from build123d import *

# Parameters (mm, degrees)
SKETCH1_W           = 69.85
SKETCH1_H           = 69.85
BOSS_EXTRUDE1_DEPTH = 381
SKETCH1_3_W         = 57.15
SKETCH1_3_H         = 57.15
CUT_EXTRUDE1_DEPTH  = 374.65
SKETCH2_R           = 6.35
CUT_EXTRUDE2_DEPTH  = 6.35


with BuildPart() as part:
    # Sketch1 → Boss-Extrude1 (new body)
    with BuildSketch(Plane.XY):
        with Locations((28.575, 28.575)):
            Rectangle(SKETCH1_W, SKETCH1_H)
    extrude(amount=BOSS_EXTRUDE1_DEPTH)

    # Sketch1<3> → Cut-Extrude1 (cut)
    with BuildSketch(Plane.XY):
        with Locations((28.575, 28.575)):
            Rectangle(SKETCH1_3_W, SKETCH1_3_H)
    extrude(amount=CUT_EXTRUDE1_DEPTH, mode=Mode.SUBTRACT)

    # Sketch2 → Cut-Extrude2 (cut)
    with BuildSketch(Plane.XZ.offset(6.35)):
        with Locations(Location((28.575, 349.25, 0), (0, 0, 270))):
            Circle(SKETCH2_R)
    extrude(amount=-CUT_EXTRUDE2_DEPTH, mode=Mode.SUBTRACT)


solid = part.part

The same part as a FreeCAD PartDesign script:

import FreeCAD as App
import Part
import Sketcher

V = App.Vector
Q = App.Units.Quantity


def add_polygon(sketch, points):
    """Adds a closed chain of lines whose ends are joined by coincident constraints."""
    first, n = sketch.GeometryCount, len(points)
    for a, b in zip(points, points[1:] + points[:1]):
        sketch.addGeometry(Part.LineSegment(App.Vector(*a, 0), App.Vector(*b, 0)), False)
    for i in range(n):
        sketch.addConstraint(Sketcher.Constraint("Coincident", first + i, 2, first + (i + 1) % n, 1))

doc = App.newDocument("Part")
body = doc.addObject("PartDesign::Body", "Body")

sketch1 = doc.addObject("Sketcher::SketchObject", "Sketch")
body.addObject(sketch1)
sketch1.AttachmentSupport = (doc.XY_Plane, [""])
sketch1.MapMode = "FlatFace"
add_polygon(sketch1, [(-6, 64), (-6, -6), (64, -6), (64, 64)])
sketch1.addConstraint([
    Sketcher.Constraint("Vertical", 0),
    Sketcher.Constraint("Horizontal", 1),
    Sketcher.Constraint("Vertical", 2),
    Sketcher.Constraint("Horizontal", 3),
    Sketcher.Constraint("Equal", 3, 0),
    Sketcher.Constraint("DistanceX", 1, 1, 1, 2, Q("2.75 in")),
    Sketcher.Constraint("DistanceX", -1, 1, 1, 2, Q("2.5 in")),
    Sketcher.Constraint("DistanceY", -1, 1, 2, 2, Q("2.5 in")),
])
pad1 = doc.addObject("PartDesign::Pad", "Pad")
body.addObject(pad1)
pad1.Profile = sketch1
pad1.Length = Q("15 in")

sketch2 = doc.addObject("Sketcher::SketchObject", "Sketch001")
body.addObject(sketch2)
sketch2.AttachmentSupport = (doc.XY_Plane, [""])
sketch2.MapMode = "FlatFace"
add_polygon(sketch2, [(0, 57), (0, 0), (57, 0), (57, 57)])
sketch2.addConstraint([
    Sketcher.Constraint("Vertical", 0),
    Sketcher.Constraint("Horizontal", 1),
    Sketcher.Constraint("Vertical", 2),
    Sketcher.Constraint("Horizontal", 3),
    Sketcher.Constraint("Coincident", 0, 2, -1, 1),
    Sketcher.Constraint("Equal", 3, 0),
    Sketcher.Constraint("DistanceX", 1, 1, 1, 2, Q("2.25 in")),
])
pocket1 = doc.addObject("PartDesign::Pocket", "Pocket")
body.addObject(pocket1)
pocket1.Profile = sketch2
pocket1.Length = Q("14.75 in")
pocket1.Reversed = True

sketch3 = doc.addObject("Sketcher::SketchObject", "Sketch002")
body.addObject(sketch3)
sketch3.AttachmentSupport = (doc.XZ_Plane, [""])
sketch3.MapMode = "FlatFace"
sketch3.AttachmentOffset = App.Placement(V(0, 0, 0.25 * 25.4), App.Rotation())
sketch3.addGeometry(Part.Circle(V(29, 349, 0), V(0, 0, 1), 6), False)
sketch3.addConstraint([
    Sketcher.Constraint("Diameter", 0, Q("0.5 in")),
    Sketcher.Constraint("DistanceY", -1, 1, 0, 3, Q("13.75 in")),
    Sketcher.Constraint("DistanceX", -1, 1, 0, 3, Q("1.125 in")),
])
pocket2 = doc.addObject("PartDesign::Pocket", "Pocket001")
body.addObject(pocket2)
pocket2.Profile = sketch3
pocket2.Length = Q("0.25 in")

doc.recompute()
